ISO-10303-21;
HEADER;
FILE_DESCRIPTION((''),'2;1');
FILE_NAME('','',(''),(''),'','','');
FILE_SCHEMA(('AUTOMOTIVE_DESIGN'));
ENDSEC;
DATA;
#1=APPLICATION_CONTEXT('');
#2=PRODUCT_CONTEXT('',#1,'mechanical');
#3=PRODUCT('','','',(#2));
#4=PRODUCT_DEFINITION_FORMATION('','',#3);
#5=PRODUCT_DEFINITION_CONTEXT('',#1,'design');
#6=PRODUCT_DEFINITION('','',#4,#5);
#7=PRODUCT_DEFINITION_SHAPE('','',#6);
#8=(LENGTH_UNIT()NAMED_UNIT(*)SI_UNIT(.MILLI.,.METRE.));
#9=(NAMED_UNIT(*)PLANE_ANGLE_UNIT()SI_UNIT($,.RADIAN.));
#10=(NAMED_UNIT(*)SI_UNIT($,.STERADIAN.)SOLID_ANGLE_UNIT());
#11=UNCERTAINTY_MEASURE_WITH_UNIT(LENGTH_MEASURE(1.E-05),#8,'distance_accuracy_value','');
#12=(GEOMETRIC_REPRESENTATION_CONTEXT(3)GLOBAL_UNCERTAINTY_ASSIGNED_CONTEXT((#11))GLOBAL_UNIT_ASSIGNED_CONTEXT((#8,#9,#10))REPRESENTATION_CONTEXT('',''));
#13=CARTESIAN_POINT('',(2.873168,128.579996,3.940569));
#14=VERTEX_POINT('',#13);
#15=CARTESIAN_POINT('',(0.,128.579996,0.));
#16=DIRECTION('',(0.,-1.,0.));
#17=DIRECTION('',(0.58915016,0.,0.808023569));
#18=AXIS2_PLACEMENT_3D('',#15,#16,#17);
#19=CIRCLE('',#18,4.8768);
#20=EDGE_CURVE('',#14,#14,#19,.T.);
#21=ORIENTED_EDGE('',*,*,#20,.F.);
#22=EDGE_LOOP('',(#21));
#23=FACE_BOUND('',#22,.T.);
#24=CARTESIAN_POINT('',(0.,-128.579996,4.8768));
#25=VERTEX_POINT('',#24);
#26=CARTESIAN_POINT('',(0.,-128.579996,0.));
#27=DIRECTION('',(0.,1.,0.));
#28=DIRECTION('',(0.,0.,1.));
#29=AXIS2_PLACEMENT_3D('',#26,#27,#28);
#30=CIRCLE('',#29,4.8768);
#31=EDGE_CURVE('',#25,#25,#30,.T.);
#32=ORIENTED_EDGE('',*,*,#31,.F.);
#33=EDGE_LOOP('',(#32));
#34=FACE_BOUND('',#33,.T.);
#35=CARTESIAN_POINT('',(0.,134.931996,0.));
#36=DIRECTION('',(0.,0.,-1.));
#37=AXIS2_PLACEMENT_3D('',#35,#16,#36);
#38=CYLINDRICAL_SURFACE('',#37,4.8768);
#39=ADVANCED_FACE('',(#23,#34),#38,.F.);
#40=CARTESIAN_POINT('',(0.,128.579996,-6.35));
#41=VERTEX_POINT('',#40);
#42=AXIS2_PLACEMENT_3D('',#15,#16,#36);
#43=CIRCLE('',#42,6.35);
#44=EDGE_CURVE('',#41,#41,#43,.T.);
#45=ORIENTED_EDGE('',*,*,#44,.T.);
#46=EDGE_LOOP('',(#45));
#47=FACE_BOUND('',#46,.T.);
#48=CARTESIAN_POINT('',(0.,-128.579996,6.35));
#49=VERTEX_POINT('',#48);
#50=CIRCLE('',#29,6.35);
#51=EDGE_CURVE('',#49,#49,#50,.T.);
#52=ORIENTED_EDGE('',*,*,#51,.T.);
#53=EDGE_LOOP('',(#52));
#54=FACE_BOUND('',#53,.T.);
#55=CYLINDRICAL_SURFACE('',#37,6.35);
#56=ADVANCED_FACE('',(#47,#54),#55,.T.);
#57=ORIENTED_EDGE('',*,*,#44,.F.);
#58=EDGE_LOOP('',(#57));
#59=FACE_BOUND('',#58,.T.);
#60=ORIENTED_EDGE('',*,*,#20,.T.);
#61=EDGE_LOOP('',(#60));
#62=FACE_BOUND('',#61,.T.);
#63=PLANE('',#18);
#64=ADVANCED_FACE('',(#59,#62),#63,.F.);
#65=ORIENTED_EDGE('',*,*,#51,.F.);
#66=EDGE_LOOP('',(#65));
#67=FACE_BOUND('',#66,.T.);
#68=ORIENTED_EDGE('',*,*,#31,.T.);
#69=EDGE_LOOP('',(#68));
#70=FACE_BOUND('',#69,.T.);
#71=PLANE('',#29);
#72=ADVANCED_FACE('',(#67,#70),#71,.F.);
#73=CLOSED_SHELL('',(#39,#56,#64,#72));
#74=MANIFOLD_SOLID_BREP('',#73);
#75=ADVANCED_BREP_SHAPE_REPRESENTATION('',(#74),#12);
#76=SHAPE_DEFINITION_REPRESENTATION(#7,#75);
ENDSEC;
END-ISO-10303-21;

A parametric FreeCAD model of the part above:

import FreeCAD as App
import Part
import Sketcher
from FreeCAD import Vector
Q = App.Units.Quantity

doc = App.newDocument("Part")
body = doc.addObject("PartDesign::Body", "Body")

# Sketch on XZ plane
sketch1 = body.newObject("Sketcher::SketchObject", "Sketch")
sketch1.AttachmentSupport = (doc.getObject("XZ_Plane"), [""])
sketch1.MapMode = "FlatFace"
sketch1.AttachmentOffset = App.Placement(Vector(0, 0, 128.579996), App.Rotation())
sketch1.addGeometry([
    Part.Circle(Vector(0, 0, 0), Vector(0, 0, 1), 6.3),
    Part.Circle(Vector(0, 0, 0), Vector(0, 0, 1), 4.9),
], False)
sketch1.addConstraint([
    Sketcher.Constraint("Coincident", 0, 3, -1, 1),
    Sketcher.Constraint("Coincident", 1, 3, -1, 1),
    Sketcher.Constraint("Diameter", 0, Q("0.5 in")),
    Sketcher.Constraint("Diameter", 1, Q("0.384 in")),
])
pad1 = body.newObject("PartDesign::Pad", "Pad")
pad1.Profile = sketch1
pad1.Length = 257.159992
pad1.Reversed = True

doc.recompute()
